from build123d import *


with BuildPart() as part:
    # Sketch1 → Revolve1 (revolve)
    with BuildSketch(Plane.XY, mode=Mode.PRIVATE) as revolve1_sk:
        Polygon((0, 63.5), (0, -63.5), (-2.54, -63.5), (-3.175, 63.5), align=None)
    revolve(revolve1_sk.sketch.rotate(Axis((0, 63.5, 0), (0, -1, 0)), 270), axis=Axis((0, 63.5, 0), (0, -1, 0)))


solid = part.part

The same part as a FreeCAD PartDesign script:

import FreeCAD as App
import Part
import Sketcher
Q = App.Units.Quantity

doc = App.newDocument("Part")
body = doc.addObject("PartDesign::Body", "Body")

# Sketch on XY plane
sketch1 = body.newObject("Sketcher::SketchObject", "Sketch")
sketch1.AttachmentSupport = (doc.getObject("XY_Plane"), [""])
sketch1.MapMode = "FlatFace"
sketch1.addGeometry([
    Part.LineSegment(App.Vector(0, -63.5, 0), App.Vector(0, 63.5, 0)),
    Part.LineSegment(App.Vector(0, 63.5, 0), App.Vector(-3.2, 63.5, 0)),
    Part.LineSegment(App.Vector(-3.2, 63.5, 0), App.Vector(-2.5, -63.5, 0)),
    Part.LineSegment(App.Vector(-2.5, -63.5, 0), App.Vector(0, -63.5, 0)),
], False)
sketch1.addConstraint([
    Sketcher.Constraint("Coincident", 0, 2, 1, 1),
    Sketcher.Constraint("Coincident", 1, 2, 2, 1),
    Sketcher.Constraint("Coincident", 2, 2, 3, 1),
    Sketcher.Constraint("Coincident", 3, 2, 0, 1),
    Sketcher.Constraint("Vertical", 0),
    Sketcher.Constraint("Horizontal", 1),
    Sketcher.Constraint("Horizontal", 3),
    Sketcher.Constraint("Symmetric", 0, 2, 3, 2, -1, 1),
    Sketcher.Constraint("DistanceY", 0, 1, 0, 2, Q("5 in")),
    Sketcher.Constraint("DistanceX", 3, 1, 3, 2, Q("0.1 in")),
    Sketcher.Constraint("DistanceX", 1, 2, 1, 1, Q("0.125 in")),
])
revolution = body.newObject("PartDesign::Revolution", "Revolution")
revolution.Profile = sketch1
revolution.ReferenceAxis = (sketch1, ["V_Axis"])
revolution.Angle = 360

doc.recompute()
